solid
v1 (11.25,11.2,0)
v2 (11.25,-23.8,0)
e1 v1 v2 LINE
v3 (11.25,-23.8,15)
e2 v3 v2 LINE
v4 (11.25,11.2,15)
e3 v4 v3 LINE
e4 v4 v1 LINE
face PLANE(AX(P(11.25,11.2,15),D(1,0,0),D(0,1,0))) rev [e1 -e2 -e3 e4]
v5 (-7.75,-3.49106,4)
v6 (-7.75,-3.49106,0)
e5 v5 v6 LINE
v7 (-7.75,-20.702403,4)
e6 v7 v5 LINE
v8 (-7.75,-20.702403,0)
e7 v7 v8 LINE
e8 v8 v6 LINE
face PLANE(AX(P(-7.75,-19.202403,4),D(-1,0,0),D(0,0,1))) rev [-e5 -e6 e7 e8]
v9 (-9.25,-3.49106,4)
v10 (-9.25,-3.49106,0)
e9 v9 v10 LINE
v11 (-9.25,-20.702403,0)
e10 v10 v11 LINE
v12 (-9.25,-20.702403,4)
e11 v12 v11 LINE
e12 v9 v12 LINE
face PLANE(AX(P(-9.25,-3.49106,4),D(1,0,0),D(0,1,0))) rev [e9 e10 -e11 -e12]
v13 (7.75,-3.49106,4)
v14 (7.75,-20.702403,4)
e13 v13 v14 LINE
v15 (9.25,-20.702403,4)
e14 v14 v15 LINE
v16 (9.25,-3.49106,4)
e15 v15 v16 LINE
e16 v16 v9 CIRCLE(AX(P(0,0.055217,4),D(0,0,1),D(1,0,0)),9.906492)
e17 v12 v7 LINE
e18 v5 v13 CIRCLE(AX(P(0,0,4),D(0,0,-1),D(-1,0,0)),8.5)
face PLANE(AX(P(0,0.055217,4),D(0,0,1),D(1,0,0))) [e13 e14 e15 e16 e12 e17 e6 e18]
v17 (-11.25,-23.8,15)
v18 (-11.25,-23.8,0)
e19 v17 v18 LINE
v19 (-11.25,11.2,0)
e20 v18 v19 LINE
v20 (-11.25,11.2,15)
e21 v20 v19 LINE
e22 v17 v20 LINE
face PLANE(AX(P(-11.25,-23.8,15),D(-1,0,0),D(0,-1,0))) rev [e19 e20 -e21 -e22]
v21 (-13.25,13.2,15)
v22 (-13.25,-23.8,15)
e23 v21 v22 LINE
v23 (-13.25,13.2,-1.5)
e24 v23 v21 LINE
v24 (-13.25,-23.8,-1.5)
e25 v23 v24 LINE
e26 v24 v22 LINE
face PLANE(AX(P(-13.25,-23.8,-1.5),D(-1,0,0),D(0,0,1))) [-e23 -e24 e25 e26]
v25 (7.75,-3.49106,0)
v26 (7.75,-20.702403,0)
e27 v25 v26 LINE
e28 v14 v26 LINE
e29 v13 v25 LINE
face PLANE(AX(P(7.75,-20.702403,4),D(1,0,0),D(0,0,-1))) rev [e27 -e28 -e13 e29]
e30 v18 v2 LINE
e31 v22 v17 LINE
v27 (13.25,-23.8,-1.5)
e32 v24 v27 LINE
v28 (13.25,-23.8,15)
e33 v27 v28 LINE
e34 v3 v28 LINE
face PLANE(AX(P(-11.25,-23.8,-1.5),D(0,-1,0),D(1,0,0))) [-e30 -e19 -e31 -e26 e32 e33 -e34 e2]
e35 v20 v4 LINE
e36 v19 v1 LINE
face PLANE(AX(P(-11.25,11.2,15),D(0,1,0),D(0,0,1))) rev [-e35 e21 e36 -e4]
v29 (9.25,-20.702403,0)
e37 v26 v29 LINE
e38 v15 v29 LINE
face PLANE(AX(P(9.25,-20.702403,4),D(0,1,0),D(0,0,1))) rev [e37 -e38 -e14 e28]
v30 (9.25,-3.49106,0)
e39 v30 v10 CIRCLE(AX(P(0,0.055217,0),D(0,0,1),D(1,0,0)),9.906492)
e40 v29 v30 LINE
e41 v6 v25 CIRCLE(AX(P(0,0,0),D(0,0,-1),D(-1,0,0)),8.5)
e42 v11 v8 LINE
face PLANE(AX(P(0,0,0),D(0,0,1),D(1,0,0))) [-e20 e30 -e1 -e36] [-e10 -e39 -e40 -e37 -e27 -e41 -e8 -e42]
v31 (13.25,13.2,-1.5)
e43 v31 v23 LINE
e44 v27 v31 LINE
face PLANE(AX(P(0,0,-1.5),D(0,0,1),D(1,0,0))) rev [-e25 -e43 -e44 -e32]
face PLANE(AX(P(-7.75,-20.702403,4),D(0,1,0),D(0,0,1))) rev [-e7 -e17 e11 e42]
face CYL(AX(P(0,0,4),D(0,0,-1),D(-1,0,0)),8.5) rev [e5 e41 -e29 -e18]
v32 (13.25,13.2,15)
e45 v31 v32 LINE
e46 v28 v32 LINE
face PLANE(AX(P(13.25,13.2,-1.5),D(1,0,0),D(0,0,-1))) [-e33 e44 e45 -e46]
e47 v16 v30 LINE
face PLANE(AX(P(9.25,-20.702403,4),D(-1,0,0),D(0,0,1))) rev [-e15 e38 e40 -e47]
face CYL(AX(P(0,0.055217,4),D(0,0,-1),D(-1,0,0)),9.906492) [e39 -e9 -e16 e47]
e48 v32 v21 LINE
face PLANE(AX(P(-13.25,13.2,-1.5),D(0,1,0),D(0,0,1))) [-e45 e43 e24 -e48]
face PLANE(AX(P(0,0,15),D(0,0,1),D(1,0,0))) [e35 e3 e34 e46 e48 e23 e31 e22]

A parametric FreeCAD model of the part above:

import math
import FreeCAD as App
import Part
import Sketcher


def add_polygon(sketch, points):
    """Adds a closed chain of lines whose ends are joined by coincident constraints."""
    first, n = sketch.GeometryCount, len(points)
    for a, b in zip(points, points[1:] + points[:1]):
        sketch.addGeometry(Part.LineSegment(App.Vector(*a, 0), App.Vector(*b, 0)), False)
    for i in range(n):
        sketch.addConstraint(Sketcher.Constraint("Coincident", first + i, 2, first + (i + 1) % n, 1))

doc = App.newDocument("Part")
body = doc.addObject("PartDesign::Body", "Body")

# Sketch on XY plane
sketch1 = doc.addObject("Sketcher::SketchObject", "Sketch")
body.addObject(sketch1)
sketch1.AttachmentSupport = (doc.XY_Plane, [""])
sketch1.MapMode = "FlatFace"
sketch1.addGeometry([
    Part.ArcOfCircle(Part.Circle(App.Vector(0, 0, 0), App.Vector(0, 0, 1), 8.5), math.radians(-24), math.radians(204)),  # 0
    Part.LineSegment(App.Vector(7.8, -3.5, 0), App.Vector(7.8, -20.7, 0)),  # 1
    Part.LineSegment(App.Vector(7.8, -20.7, 0), App.Vector(9.2, -20.7, 0)),  # 2
    Part.LineSegment(App.Vector(9.2, -20.7, 0), App.Vector(9.2, -3.5, 0)),  # 3
    Part.ArcOfCircle(Part.Circle(App.Vector(0, 0.1, 0), App.Vector(0, 0, 1), 9.9), math.radians(-21), math.radians(201)),  # 4
    Part.LineSegment(App.Vector(-9.2, -3.5, 0), App.Vector(-9.2, -20.7, 0)),  # 5
    Part.LineSegment(App.Vector(-9.2, -20.7, 0), App.Vector(-7.8, -20.7, 0)),  # 6
    Part.LineSegment(App.Vector(-7.8, -20.7, 0), App.Vector(-7.8, -3.5, 0)),  # 7
], False)
sketch1.addConstraint([
    Sketcher.Constraint("Coincident", 0, 1, 1, 1),
    Sketcher.Constraint("Coincident", 1, 2, 2, 1),
    Sketcher.Constraint("Coincident", 2, 2, 3, 1),
    Sketcher.Constraint("Coincident", 3, 2, 4, 1),
    Sketcher.Constraint("Coincident", 4, 2, 5, 1),
    Sketcher.Constraint("Coincident", 5, 2, 6, 1),
    Sketcher.Constraint("Coincident", 6, 2, 7, 1),
    Sketcher.Constraint("Coincident", 7, 2, 0, 2),
    Sketcher.Constraint("Vertical", 1),
    Sketcher.Constraint("Horizontal", 2),
    Sketcher.Constraint("Vertical", 3),
    Sketcher.Constraint("Vertical", 5),
    Sketcher.Constraint("Horizontal", 6),
    Sketcher.Constraint("Vertical", 7),
    Sketcher.Constraint("Coincident", 0, 3, -1, 1),
    Sketcher.Constraint("Symmetric", 3, 2, 4, 2, -2),
    Sketcher.Constraint("Symmetric", 1, 2, 6, 2, -2),
    Sketcher.Constraint("Horizontal", 0, 1, 3, 2),
    Sketcher.Constraint("Radius", 0, 8.5),
    Sketcher.Constraint("DistanceX", 2, 1, 2, 2, 1.5),
    Sketcher.Constraint("DistanceX", 4, 2, 0, 1, 17.0),
    Sketcher.Constraint("Radius", 4, 9.906492),
    Sketcher.Constraint("DistanceY", 1, 2, 1, 1, 17.211343),
])
pad1 = doc.addObject("PartDesign::Pad", "Pad")
body.addObject(pad1)
pad1.Profile = sketch1
pad1.Length = 4

# Sketch on XY plane
sketch2 = doc.addObject("Sketcher::SketchObject", "Sketch001")
body.addObject(sketch2)
sketch2.AttachmentSupport = (doc.XY_Plane, [""])
sketch2.MapMode = "FlatFace"
add_polygon(sketch2, [(-11, 11), (-11, -24), (11, -24), (11, 11)])  # lines 0-3
sketch2.addConstraint([
    Sketcher.Constraint("Vertical", 0),
    Sketcher.Constraint("Horizontal", 1),
    Sketcher.Constraint("Vertical", 2),
    Sketcher.Constraint("Horizontal", 3),
    Sketcher.Constraint("DistanceY", 0, 2, 0, 1, 35.0),
    Sketcher.Constraint("DistanceX", 1, 1, 1, 2, 22.5),
    Sketcher.Constraint("DistanceY", 0, 2, -1, 1, 23.8),
    Sketcher.Constraint("DistanceX", 0, 2, -1, 1, 11.25),
])
pad2 = doc.addObject("PartDesign::Pad", "Pad001")
body.addObject(pad2)
pad2.Profile = sketch2
pad2.Length = 1.5
pad2.Reversed = True
body2 = doc.addObject("PartDesign::Body", "Body001")

# Sketch on XY plane
sketch3 = doc.addObject("Sketcher::SketchObject", "Sketch002")
body2.addObject(sketch3)
sketch3.AttachmentSupport = (doc.getObject("XY_Plane001"), [""])
sketch3.MapMode = "FlatFace"
add_polygon(sketch3, [(13.2, 13.2), (-13.2, 13.2), (-13.2, -23.8), (-11.2, -23.8), (-11.2, 11.2), (11.2, 11.2), (11.2, -23.8), (13.2, -23.8)])  # lines 0-7
sketch3.addConstraint([
    Sketcher.Constraint("Horizontal", 0),
    Sketcher.Constraint("Vertical", 1),
    Sketcher.Constraint("Horizontal", 2),
    Sketcher.Constraint("Vertical", 3),
    Sketcher.Constraint("Horizontal", 4),
    Sketcher.Constraint("Vertical", 5),
    Sketcher.Constraint("Horizontal", 6),
    Sketcher.Constraint("Vertical", 7),
    Sketcher.Constraint("Symmetric", 2, 2, 5, 2, -2),
    Sketcher.Constraint("Equal", 2, 6),
    Sketcher.Constraint("DistanceX", 2, 1, 2, 2, 2.0),
    Sketcher.Constraint("DistanceY", 1, 2, 1, 1, 37.0),
    Sketcher.Constraint("DistanceY", 3, 1, 3, 2, 35.0),
    Sketcher.Constraint("DistanceX", 0, 2, 0, 1, 26.5),
    Sketcher.Constraint("DistanceY", -1, 1, 0, 2, 13.2),
])
pad3 = doc.addObject("PartDesign::Pad", "Pad002")
body2.addObject(pad3)
pad3.Profile = sketch3
pad3.Length = 15
body.AllowCompound = True
doc.recompute()

boolean = doc.addObject("PartDesign::Boolean", "Boolean")
body.addObject(boolean)
boolean.Type = "Fuse"
boolean.addObjects([body2])

# Sketch on XY plane
sketch4 = doc.addObject("Sketcher::SketchObject", "Sketch003")
body.addObject(sketch4)
sketch4.AttachmentSupport = (doc.XY_Plane, [""])
sketch4.MapMode = "FlatFace"
add_polygon(sketch4, [(13.2, 13.2), (-13.2, 13.2), (-13.2, -23.8), (-11.2, -23.8), (-11.2, 11.2), (11.2, 11.2), (11.2, -23.8), (13.2, -23.8)])  # lines 0-7
sketch4.addConstraint([
    Sketcher.Constraint("Horizontal", 0),
    Sketcher.Constraint("Vertical", 1),
    Sketcher.Constraint("Horizontal", 2),
    Sketcher.Constraint("Vertical", 3),
    Sketcher.Constraint("Horizontal", 4),
    Sketcher.Constraint("Vertical", 5),
    Sketcher.Constraint("Horizontal", 6),
    Sketcher.Constraint("Vertical", 7),
    Sketcher.Constraint("Symmetric", 2, 2, 5, 2, -2),
    Sketcher.Constraint("Equal", 2, 6),
    Sketcher.Constraint("DistanceX", 2, 1, 2, 2, 2.0),
    Sketcher.Constraint("DistanceY", 1, 2, 1, 1, 37.0),
    Sketcher.Constraint("DistanceY", 3, 1, 3, 2, 35.0),
    Sketcher.Constraint("DistanceX", 0, 2, 0, 1, 26.5),
    Sketcher.Constraint("DistanceY", -1, 1, 0, 2, 13.2),
])
pad4 = doc.addObject("PartDesign::Pad", "Pad003")
body.addObject(pad4)
pad4.Profile = sketch4
pad4.Length = 1.5
pad4.Reversed = True

doc.recompute()
